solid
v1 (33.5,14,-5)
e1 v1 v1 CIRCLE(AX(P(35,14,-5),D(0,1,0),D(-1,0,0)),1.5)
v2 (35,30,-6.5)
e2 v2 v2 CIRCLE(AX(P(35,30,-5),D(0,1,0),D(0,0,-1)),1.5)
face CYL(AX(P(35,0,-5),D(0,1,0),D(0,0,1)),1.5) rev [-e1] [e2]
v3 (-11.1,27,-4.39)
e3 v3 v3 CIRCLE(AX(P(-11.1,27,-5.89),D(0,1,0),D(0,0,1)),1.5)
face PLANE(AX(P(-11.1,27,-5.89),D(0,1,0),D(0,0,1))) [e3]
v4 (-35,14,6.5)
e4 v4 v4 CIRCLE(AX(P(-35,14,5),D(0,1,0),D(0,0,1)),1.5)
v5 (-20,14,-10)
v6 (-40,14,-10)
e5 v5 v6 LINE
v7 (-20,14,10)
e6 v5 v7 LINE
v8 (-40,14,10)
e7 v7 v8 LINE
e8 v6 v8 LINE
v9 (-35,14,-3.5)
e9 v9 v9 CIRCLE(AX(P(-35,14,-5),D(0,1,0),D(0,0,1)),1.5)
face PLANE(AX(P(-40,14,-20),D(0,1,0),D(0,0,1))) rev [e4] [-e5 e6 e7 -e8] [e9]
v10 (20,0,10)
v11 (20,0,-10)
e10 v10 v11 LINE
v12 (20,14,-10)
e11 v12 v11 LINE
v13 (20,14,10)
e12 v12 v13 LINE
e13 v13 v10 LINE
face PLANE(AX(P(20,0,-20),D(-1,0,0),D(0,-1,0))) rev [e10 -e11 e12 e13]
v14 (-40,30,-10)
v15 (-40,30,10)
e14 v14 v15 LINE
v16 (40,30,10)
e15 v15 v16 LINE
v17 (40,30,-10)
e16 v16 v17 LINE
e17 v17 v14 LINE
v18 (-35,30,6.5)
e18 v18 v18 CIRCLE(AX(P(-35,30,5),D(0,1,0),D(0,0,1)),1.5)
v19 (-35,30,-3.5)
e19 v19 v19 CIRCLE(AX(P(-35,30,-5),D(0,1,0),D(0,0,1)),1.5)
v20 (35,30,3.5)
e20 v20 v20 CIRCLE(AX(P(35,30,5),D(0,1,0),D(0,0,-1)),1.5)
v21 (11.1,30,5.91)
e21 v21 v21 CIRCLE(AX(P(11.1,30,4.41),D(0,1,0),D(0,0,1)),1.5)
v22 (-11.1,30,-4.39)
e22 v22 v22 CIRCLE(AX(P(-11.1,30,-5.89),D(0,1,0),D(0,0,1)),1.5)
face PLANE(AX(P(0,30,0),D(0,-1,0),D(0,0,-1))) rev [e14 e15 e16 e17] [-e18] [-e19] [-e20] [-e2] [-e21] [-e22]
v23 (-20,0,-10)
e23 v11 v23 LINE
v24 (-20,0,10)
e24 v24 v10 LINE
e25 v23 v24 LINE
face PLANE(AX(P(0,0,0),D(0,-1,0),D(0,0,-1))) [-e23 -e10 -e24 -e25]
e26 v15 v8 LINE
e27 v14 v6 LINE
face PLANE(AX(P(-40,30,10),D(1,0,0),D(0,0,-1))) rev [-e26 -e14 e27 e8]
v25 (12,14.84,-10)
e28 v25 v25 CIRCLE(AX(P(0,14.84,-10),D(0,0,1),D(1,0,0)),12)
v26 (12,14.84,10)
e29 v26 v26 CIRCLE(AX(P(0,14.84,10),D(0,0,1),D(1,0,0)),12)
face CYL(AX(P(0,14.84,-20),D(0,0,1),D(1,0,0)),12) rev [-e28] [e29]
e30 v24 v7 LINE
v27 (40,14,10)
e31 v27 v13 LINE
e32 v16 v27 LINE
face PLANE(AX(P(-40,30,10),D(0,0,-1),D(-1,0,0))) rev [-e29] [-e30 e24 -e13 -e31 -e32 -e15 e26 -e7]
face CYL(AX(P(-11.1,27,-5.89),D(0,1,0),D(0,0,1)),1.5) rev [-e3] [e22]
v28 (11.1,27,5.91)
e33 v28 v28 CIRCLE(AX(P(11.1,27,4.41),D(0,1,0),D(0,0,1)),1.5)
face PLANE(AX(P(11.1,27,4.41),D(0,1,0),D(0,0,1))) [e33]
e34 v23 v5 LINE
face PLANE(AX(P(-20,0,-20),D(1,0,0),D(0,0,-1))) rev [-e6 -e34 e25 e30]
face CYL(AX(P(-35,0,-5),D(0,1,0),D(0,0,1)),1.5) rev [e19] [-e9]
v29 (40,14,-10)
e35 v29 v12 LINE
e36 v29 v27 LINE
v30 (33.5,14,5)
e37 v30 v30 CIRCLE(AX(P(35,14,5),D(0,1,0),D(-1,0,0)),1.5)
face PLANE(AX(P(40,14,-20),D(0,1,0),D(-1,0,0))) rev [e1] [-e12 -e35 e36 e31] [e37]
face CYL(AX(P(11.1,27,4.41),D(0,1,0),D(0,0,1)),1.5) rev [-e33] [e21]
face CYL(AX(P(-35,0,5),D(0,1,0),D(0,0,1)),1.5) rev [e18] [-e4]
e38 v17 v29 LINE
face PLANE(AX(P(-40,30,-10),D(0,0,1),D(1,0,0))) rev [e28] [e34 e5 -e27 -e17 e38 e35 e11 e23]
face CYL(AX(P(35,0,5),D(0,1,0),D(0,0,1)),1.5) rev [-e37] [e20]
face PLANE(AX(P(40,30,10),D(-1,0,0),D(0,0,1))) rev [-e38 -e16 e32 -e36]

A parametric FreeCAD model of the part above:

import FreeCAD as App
import Part
import Sketcher

V = App.Vector
Q = App.Units.Quantity

doc = App.newDocument("Part")
body = doc.addObject("PartDesign::Body", "Body")

# Sketch on XZ plane
sketch1 = body.newObject("Sketcher::SketchObject", "Sketch")
sketch1.AttachmentSupport = (doc.getObject("XZ_Plane"), [""])
sketch1.MapMode = "FlatFace"
sketch1.addGeometry([
    Part.LineSegment(V(-40, -10, 0), V(-40, 10, 0)),
    Part.LineSegment(V(-40, 10, 0), V(40, 10, 0)),
    Part.LineSegment(V(40, 10, 0), V(40, -10, 0)),
    Part.LineSegment(V(40, -10, 0), V(-40, -10, 0)),
], False)
sketch1.addConstraint([
    Sketcher.Constraint("Coincident", 0, 2, 1, 1),
    Sketcher.Constraint("Coincident", 1, 2, 2, 1),
    Sketcher.Constraint("Coincident", 2, 2, 3, 1),
    Sketcher.Constraint("Coincident", 3, 2, 0, 1),
    Sketcher.Constraint("Vertical", 0),
    Sketcher.Constraint("Horizontal", 1),
    Sketcher.Constraint("Vertical", 2),
    Sketcher.Constraint("Horizontal", 3),
    Sketcher.Constraint("Symmetric", 0, 2, 2, 2, -1, 1),
    Sketcher.Constraint("DistanceX", 1, 1, 1, 2, Q("80 mm")),
    Sketcher.Constraint("DistanceY", 0, 1, 0, 2, Q("20 mm")),
])
pad1 = body.newObject("PartDesign::Pad", "Pad")
pad1.Profile = sketch1
pad1.Length = 30
pad1.Reversed = True

# Sketch on XY plane
sketch2 = body.newObject("Sketcher::SketchObject", "Sketch001")
sketch2.AttachmentSupport = (doc.getObject("XY_Plane"), [""])
sketch2.MapMode = "FlatFace"
sketch2.AttachmentOffset = App.Placement(V(0, 0, 10), App.Rotation())
sketch2.addGeometry([
    Part.LineSegment(V(20, 14, 0), V(20, 0, 0)),  # 0
    Part.LineSegment(V(20, 0, 0), V(40, 0, 0)),  # 1
    Part.LineSegment(V(40, 0, 0), V(40, 14, 0)),  # 2
    Part.LineSegment(V(40, 14, 0), V(20, 14, 0)),  # 3
    Part.LineSegment(V(-40, 14, 0), V(-40, 0, 0)),  # 4
    Part.LineSegment(V(-40, 0, 0), V(-20, 0, 0)),  # 5
    Part.LineSegment(V(-20, 0, 0), V(-20, 14, 0)),  # 6
    Part.LineSegment(V(-20, 14, 0), V(-40, 14, 0)),  # 7
], False)
sketch2.addConstraint([
    Sketcher.Constraint("Coincident", 0, 2, 1, 1),
    Sketcher.Constraint("Coincident", 1, 2, 2, 1),
    Sketcher.Constraint("Coincident", 2, 2, 3, 1),
    Sketcher.Constraint("Coincident", 3, 2, 0, 1),
    Sketcher.Constraint("Coincident", 4, 2, 5, 1),
    Sketcher.Constraint("Coincident", 5, 2, 6, 1),
    Sketcher.Constraint("Coincident", 6, 2, 7, 1),
    Sketcher.Constraint("Coincident", 7, 2, 4, 1),
    Sketcher.Constraint("Vertical", 0),
    Sketcher.Constraint("Horizontal", 1),
    Sketcher.Constraint("Vertical", 2),
    Sketcher.Constraint("Horizontal", 3),
    Sketcher.Constraint("Vertical", 4),
    Sketcher.Constraint("Horizontal", 5),
    Sketcher.Constraint("Vertical", 6),
    Sketcher.Constraint("Horizontal", 7),
    Sketcher.Constraint("Symmetric", 1, 2, 4, 2, -1, 1),
    Sketcher.Constraint("Symmetric", 0, 2, 5, 2, -2),
    Sketcher.Constraint("Horizontal", 3, 2, 6, 2),
    Sketcher.Constraint("DistanceX", 1, 1, 1, 2, Q("20 mm")),
    Sketcher.Constraint("DistanceY", 0, 2, 0, 1, Q("14 mm")),
    Sketcher.Constraint("DistanceX", -1, 1, 0, 2, Q("20 mm")),
])
pocket1 = body.newObject("PartDesign::Pocket", "Pocket")
pocket1.Profile = sketch2
pocket1.Length = 30

# Sketch on XY plane
sketch3 = body.newObject("Sketcher::SketchObject", "Sketch002")
sketch3.AttachmentSupport = (doc.getObject("XY_Plane"), [""])
sketch3.MapMode = "FlatFace"
sketch3.AttachmentOffset = App.Placement(V(0, 0, 10), App.Rotation())
sketch3.addGeometry(Part.Circle(V(0, 15, 0), V(0, 0, 1), 12), False)
sketch3.addConstraint([
    Sketcher.Constraint("PointOnObject", 0, 3, -2),
    Sketcher.Constraint("Diameter", 0, Q("24 mm")),
    Sketcher.Constraint("DistanceY", -1, 1, 0, 3, Q("14.84 mm")),
])
pocket2 = body.newObject("PartDesign::Pocket", "Pocket001")
pocket2.Profile = sketch3
pocket2.Length = 30

# Sketch on XZ plane
sketch4 = body.newObject("Sketcher::SketchObject", "Sketch003")
sketch4.AttachmentSupport = (doc.getObject("XZ_Plane"), [""])
sketch4.MapMode = "FlatFace"
sketch4.AttachmentOffset = App.Placement(V(0, 0, -30), App.Rotation())
sketch4.addGeometry([
    Part.Circle(V(-35, -5, 0), V(0, 0, 1), 1.5),
    Part.Circle(V(-35, 5, 0), V(0, 0, 1), 1.5),
    Part.Circle(V(35, 5, 0), V(0, 0, 1), 1.5),
    Part.Circle(V(35, -5, 0), V(0, 0, 1), 1.5),
], False)
sketch4.addConstraint([
    Sketcher.Constraint("Equal", 0, 1),
    Sketcher.Constraint("Equal", 1, 2),
    Sketcher.Constraint("Equal", 2, 3),
    Sketcher.Constraint("Symmetric", 0, 3, 2, 3, -1, 1),
    Sketcher.Constraint("Symmetric", 1, 3, 3, 3, -1, 1),
    Sketcher.Constraint("Symmetric", 1, 3, 2, 3, -2),
    Sketcher.Constraint("Diameter", 0, Q("3 mm")),
    Sketcher.Constraint("DistanceX", 0, 3, -1, 1, Q("35 mm")),
    Sketcher.Constraint("DistanceY", 0, 3, -1, 1, Q("5 mm")),
])
pocket3 = body.newObject("PartDesign::Pocket", "Pocket002")
pocket3.Profile = sketch4
pocket3.Length = 30
pocket3.Reversed = True

# Sketch on XZ plane
sketch5 = body.newObject("Sketcher::SketchObject", "Sketch004")
sketch5.AttachmentSupport = (doc.getObject("XZ_Plane"), [""])
sketch5.MapMode = "FlatFace"
sketch5.AttachmentOffset = App.Placement(V(0, 0, -30), App.Rotation())
sketch5.addGeometry([
    Part.Circle(V(-11.1, -5.9, 0), V(0, 0, 1), 1.5),
    Part.Circle(V(11.1, 4.4, 0), V(0, 0, 1), 1.5),
], False)
sketch5.addConstraint([
    Sketcher.Constraint("Equal", 0, 1),
    Sketcher.Constraint("Diameter", 0, Q("3 mm")),
    Sketcher.Constraint("DistanceX", 0, 3, -1, 1, Q("11.1 mm")),
    Sketcher.Constraint("DistanceX", -1, 1, 1, 3, Q("11.1 mm")),
    Sketcher.Constraint("DistanceY", 0, 3, 1, 3, Q("10.3 mm")),
    Sketcher.Constraint("DistanceY", 0, 3, -1, 1, Q("5.89 mm")),
])
pocket4 = body.newObject("PartDesign::Pocket", "Pocket003")
pocket4.Profile = sketch5
pocket4.Length = 3
pocket4.Reversed = True

doc.recompute()
